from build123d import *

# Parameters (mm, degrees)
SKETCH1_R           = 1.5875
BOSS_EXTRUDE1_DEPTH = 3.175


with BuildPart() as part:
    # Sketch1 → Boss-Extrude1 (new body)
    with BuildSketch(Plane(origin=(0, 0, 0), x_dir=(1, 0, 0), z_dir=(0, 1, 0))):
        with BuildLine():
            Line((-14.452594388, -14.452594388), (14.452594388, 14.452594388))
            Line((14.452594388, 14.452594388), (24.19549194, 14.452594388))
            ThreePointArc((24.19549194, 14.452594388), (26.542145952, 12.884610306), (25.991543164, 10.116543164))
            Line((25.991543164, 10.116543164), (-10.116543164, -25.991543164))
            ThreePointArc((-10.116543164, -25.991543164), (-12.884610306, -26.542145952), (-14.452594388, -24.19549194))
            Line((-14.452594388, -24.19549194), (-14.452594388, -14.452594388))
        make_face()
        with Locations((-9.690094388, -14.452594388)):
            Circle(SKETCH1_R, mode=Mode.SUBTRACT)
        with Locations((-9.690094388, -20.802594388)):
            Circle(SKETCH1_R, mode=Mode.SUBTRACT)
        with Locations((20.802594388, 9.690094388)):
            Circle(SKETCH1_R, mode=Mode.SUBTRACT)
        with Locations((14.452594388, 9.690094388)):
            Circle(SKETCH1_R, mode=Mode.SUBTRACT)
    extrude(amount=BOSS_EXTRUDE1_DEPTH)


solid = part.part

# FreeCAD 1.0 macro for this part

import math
import FreeCAD as App
import Part
import Sketcher
Q = App.Units.Quantity

doc = App.newDocument("Part")
body = doc.addObject("PartDesign::Body", "Body")

sketch1 = body.newObject("Sketcher::SketchObject", "Sketch")
sketch1.AttachmentSupport = (doc.getObject("XZ_Plane"), [""])
sketch1.MapMode = "FlatFace"
sketch1.addGeometry([
    Part.LineSegment(App.Vector(14.5, -14.5, 0), App.Vector(-14.5, 14.5, 0)),
    Part.LineSegment(App.Vector(-14.5, 14.5, 0), App.Vector(-14.5, 24.2, 0)),
    Part.ArcOfCircle(Part.Circle(App.Vector(-11.9, 24.2, 0), App.Vector(0, 0, 1), 2.5), math.radians(45), math.radians(180)),
    Part.LineSegment(App.Vector(-10.1, 26, 0), App.Vector(26, -10.1, 0)),
    Part.ArcOfCircle(Part.Circle(App.Vector(24.2, -11.9, 0), App.Vector(0, 0, 1), 2.5), math.radians(-90), math.radians(45)),
    Part.LineSegment(App.Vector(24.2, -14.5, 0), App.Vector(14.5, -14.5, 0)),
    Part.Circle(App.Vector(-9.7, 20.8, 0), App.Vector(0, 0, 1), 1.6),
    Part.Circle(App.Vector(-9.7, 14.5, 0), App.Vector(0, 0, 1), 1.6),
    Part.Circle(App.Vector(20.8, -9.7, 0), App.Vector(0, 0, 1), 1.6),
    Part.Circle(App.Vector(14.5, -9.7, 0), App.Vector(0, 0, 1), 1.6),
], False)
sketch1.addConstraint([
    Sketcher.Constraint("Coincident", 0, 2, 1, 1),
    Sketcher.Constraint("Tangent", 1, 2, 2, 2),
    Sketcher.Constraint("Tangent", 2, 1, 3, 1),
    Sketcher.Constraint("Tangent", 3, 2, 4, 2),
    Sketcher.Constraint("Tangent", 4, 1, 5, 1),
    Sketcher.Constraint("Coincident", 5, 2, 0, 1),
    Sketcher.Constraint("Vertical", 1),
    Sketcher.Constraint("Horizontal", 5),
    Sketcher.Constraint("Equal", 2, 4),
    Sketcher.Constraint("Equal", 6, 7),
    Sketcher.Constraint("Equal", 7, 8),
    Sketcher.Constraint("Equal", 8, 9),
    Sketcher.Constraint("Symmetric", 0, 2, 5, 2, -1, 1),
    Sketcher.Constraint("Parallel", 0, 3),
    Sketcher.Constraint("Horizontal", 8, 3, 9, 3),
    Sketcher.Constraint("Horizontal", 7, 3, 0, 2),
    Sketcher.Constraint("Vertical", 6, 3, 7, 3),
    Sketcher.Constraint("Vertical", 9, 3, 5, 2),
    Sketcher.Constraint("Equal", 5, 1),
    Sketcher.Constraint("Radius", 2, Q("0.1 in")),
    Sketcher.Constraint("Diameter", 6, Q("0.125 in")),
    Sketcher.Constraint("DistanceY", 7, 3, 6, 3, Q("0.25 in")),
    Sketcher.Constraint("DistanceX", 9, 3, 8, 3, Q("0.25 in")),
    Sketcher.Constraint("DistanceX", 0, 2, 7, 3, Q("0.1875 in")),
    Sketcher.Constraint("DistanceY", 4, 1, 8, 3, Q("0.1875 in")),
    Sketcher.Constraint("Distance", 0, Q("40.87811 mm")),
    Sketcher.Constraint("DistanceX", 5, 2, 5, 1, Q("9.742898 mm")),
])
pad1 = body.newObject("PartDesign::Pad", "Pad")
pad1.Profile = sketch1
pad1.Length = Q("0.125 in")
pad1.Reversed = True

doc.recompute()
